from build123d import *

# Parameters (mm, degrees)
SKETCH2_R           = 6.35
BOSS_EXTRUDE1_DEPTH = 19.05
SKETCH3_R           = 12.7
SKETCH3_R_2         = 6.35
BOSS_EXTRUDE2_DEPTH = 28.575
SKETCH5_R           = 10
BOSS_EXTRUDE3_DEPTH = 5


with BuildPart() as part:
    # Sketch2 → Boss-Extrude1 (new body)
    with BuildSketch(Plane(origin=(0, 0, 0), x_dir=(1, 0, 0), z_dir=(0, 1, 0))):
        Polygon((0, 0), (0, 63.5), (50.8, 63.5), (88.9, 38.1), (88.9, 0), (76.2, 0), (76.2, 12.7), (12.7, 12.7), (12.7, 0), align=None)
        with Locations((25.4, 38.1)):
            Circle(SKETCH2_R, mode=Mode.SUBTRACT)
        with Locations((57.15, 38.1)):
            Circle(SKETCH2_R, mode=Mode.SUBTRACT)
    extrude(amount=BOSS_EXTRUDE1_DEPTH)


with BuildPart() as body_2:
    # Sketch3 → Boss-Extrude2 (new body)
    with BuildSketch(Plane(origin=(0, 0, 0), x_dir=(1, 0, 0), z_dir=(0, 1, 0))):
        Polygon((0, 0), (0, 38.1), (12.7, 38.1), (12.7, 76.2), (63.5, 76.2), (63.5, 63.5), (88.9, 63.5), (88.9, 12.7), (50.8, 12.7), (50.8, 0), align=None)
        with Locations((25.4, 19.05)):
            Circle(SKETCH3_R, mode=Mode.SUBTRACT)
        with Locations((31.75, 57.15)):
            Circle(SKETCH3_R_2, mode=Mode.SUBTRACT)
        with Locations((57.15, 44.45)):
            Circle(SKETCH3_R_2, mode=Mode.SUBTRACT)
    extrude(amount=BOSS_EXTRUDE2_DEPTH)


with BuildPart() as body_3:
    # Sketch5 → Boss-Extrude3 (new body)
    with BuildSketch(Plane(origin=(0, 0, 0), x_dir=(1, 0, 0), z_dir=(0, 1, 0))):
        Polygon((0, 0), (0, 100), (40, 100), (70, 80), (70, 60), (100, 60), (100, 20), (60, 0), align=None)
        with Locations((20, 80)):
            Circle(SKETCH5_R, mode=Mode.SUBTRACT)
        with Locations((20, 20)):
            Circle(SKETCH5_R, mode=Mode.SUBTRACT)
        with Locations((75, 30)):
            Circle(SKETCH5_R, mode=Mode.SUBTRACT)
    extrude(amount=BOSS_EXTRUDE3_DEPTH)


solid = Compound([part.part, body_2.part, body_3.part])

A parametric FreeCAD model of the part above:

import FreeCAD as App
import Part
import Sketcher
Q = App.Units.Quantity


def add_polygon(sketch, points):
    """Adds a closed chain of lines whose ends are joined by coincident constraints."""
    first, n = sketch.GeometryCount, len(points)
    for a, b in zip(points, points[1:] + points[:1]):
        sketch.addGeometry(Part.LineSegment(App.Vector(*a, 0), App.Vector(*b, 0)), False)
    for i in range(n):
        sketch.addConstraint(Sketcher.Constraint("Coincident", first + i, 2, first + (i + 1) % n, 1))

doc = App.newDocument("Part")
body = doc.addObject("PartDesign::Body", "Body")

# Sketch on XZ plane
sketch1 = body.newObject("Sketcher::SketchObject", "Sketch")
sketch1.AttachmentSupport = (doc.getObject("XZ_Plane"), [""])
sketch1.MapMode = "FlatFace"
add_polygon(sketch1, [(0, -63.5), (0, 0), (12.7, 0), (12.7, -12.7), (76.2, -12.7), (76.2, 0), (88.9, 0), (88.9, -38.1), (50.8, -63.5)])  # lines 0-8
sketch1.addGeometry(Part.Circle(App.Vector(57.15, -38.1, 0), App.Vector(0, 0, 1), 6.35), False)  # 9
sketch1.addGeometry(Part.Circle(App.Vector(25.4, -38.1, 0), App.Vector(0, 0, 1), 6.35), False)  # 10
sketch1.addConstraint([
    Sketcher.Constraint("Vertical", 0),
    Sketcher.Constraint("Horizontal", 1),
    Sketcher.Constraint("Vertical", 2),
    Sketcher.Constraint("Horizontal", 3),
    Sketcher.Constraint("Vertical", 4),
    Sketcher.Constraint("Horizontal", 5),
    Sketcher.Constraint("Vertical", 6),
    Sketcher.Constraint("Horizontal", 8),
    Sketcher.Constraint("Coincident", 0, 2, -1, 1),
    Sketcher.Constraint("Equal", 9, 10),
    Sketcher.Constraint("PointOnObject", 4, 2, -1),
    Sketcher.Constraint("Horizontal", 9, 3, 10, 3),
    Sketcher.Constraint("Horizontal", 10, 3, 6, 2),
    Sketcher.Constraint("Equal", 1, 5),
    Sketcher.Constraint("Equal", 3, 0),
    Sketcher.Constraint("Equal", 5, 2),
    Sketcher.Constraint("Diameter", 9, Q("0.5 in")),
    Sketcher.Constraint("DistanceX", 8, 2, 8, 1, Q("2 in")),
    Sketcher.Constraint("DistanceX", 1, 1, 1, 2, Q("0.5 in")),
    Sketcher.Constraint("DistanceX", 3, 1, 3, 2, Q("2.5 in")),
    Sketcher.Constraint("DistanceY", 6, 2, 6, 1, Q("1.5 in")),
    Sketcher.Constraint("DistanceX", -1, 1, 10, 3, Q("1 in")),
    Sketcher.Constraint("DistanceX", -1, 1, 9, 3, Q("2.25 in")),
])
pad1 = body.newObject("PartDesign::Pad", "Pad")
pad1.Profile = sketch1
pad1.Length = Q("0.75 in")
pad1.Reversed = True
body2 = doc.addObject("PartDesign::Body", "Body001")

# Sketch on XZ plane
sketch2 = body2.newObject("Sketcher::SketchObject", "Sketch001")
sketch2.AttachmentSupport = (doc.getObject("XZ_Plane001"), [""])
sketch2.MapMode = "FlatFace"
add_polygon(sketch2, [(0, -38.1), (0, 0), (50.8, 0), (50.8, -12.7), (88.9, -12.7), (88.9, -63.5), (63.5, -63.5), (63.5, -76.2), (12.7, -76.2), (12.7, -38.1)])  # lines 0-9
sketch2.addGeometry(Part.Circle(App.Vector(25.4, -19.05, 0), App.Vector(0, 0, 1), 12.7), False)  # 10
sketch2.addGeometry(Part.Circle(App.Vector(57.15, -44.45, 0), App.Vector(0, 0, 1), 6.35), False)  # 11
sketch2.addGeometry(Part.Circle(App.Vector(31.75, -57.15, 0), App.Vector(0, 0, 1), 6.35), False)  # 12
sketch2.addConstraint([
    Sketcher.Constraint("Vertical", 0),
    Sketcher.Constraint("Horizontal", 1),
    Sketcher.Constraint("Vertical", 2),
    Sketcher.Constraint("Horizontal", 3),
    Sketcher.Constraint("Vertical", 4),
    Sketcher.Constraint("Horizontal", 5),
    Sketcher.Constraint("Vertical", 6),
    Sketcher.Constraint("Horizontal", 7),
    Sketcher.Constraint("Vertical", 8),
    Sketcher.Constraint("Horizontal", 9),
    Sketcher.Constraint("Coincident", 0, 2, -1, 1),
    Sketcher.Constraint("Equal", 11, 12),
    Sketcher.Constraint("Equal", 1, 7),
    Sketcher.Constraint("Equal", 3, 0),
    Sketcher.Constraint("Equal", 9, 2),
    Sketcher.Constraint("Equal", 7, 4),
    Sketcher.Constraint("Equal", 2, 6),
    Sketcher.Constraint("Equal", 0, 8),
    Sketcher.Constraint("Diameter", 10, Q("1 in")),
    Sketcher.Constraint("Diameter", 11, Q("0.5 in")),
    Sketcher.Constraint("DistanceX", 1, 1, 1, 2, Q("2 in")),
    Sketcher.Constraint("DistanceX", 3, 1, 3, 2, Q("1.5 in")),
    Sketcher.Constraint("DistanceX", -1, 1, 10, 3, Q("1 in")),
    Sketcher.Constraint("DistanceY", 11, 3, 10, 3, Q("1 in")),
    Sketcher.Constraint("DistanceX", 12, 3, 11, 3, Q("1 in")),
    Sketcher.Constraint("DistanceY", 12, 3, 11, 3, Q("0.5 in")),
    Sketcher.Constraint("DistanceY", 10, 3, -1, 1, Q("0.75 in")),
    Sketcher.Constraint("DistanceX", -1, 1, 11, 3, Q("2.25 in")),
])
pad2 = body2.newObject("PartDesign::Pad", "Pad001")
pad2.Profile = sketch2
pad2.Length = Q("1.125 in")
pad2.Reversed = True
body3 = doc.addObject("PartDesign::Body", "Body002")

# Sketch on XZ plane
sketch3 = body3.newObject("Sketcher::SketchObject", "Sketch002")
sketch3.AttachmentSupport = (doc.getObject("XZ_Plane002"), [""])
sketch3.MapMode = "FlatFace"
add_polygon(sketch3, [(0, -100), (0, 0), (60, 0), (100, -20), (100, -60), (70, -60), (70, -80), (40, -100)])  # lines 0-7
sketch3.addGeometry(Part.Circle(App.Vector(75, -30, 0), App.Vector(0, 0, 1), 10), False)  # 8
sketch3.addGeometry(Part.Circle(App.Vector(20, -20, 0), App.Vector(0, 0, 1), 10), False)  # 9
sketch3.addGeometry(Part.Circle(App.Vector(20, -80, 0), App.Vector(0, 0, 1), 10), False)  # 10
sketch3.addConstraint([
    Sketcher.Constraint("Vertical", 0),
    Sketcher.Constraint("Horizontal", 1),
    Sketcher.Constraint("Vertical", 3),
    Sketcher.Constraint("Horizontal", 4),
    Sketcher.Constraint("Vertical", 5),
    Sketcher.Constraint("Horizontal", 7),
    Sketcher.Constraint("Coincident", 0, 2, -1, 1),
    Sketcher.Constraint("Equal", 8, 9),
    Sketcher.Constraint("Equal", 9, 10),
    Sketcher.Constraint("Horizontal", 9, 3, 2, 2),
    Sketcher.Constraint("Horizontal", 10, 3, 5, 2),
    Sketcher.Constraint("Vertical", 9, 3, 10, 3),
    Sketcher.Constraint("Equal", 7, 3),
    Sketcher.Constraint("Diameter", 8, Q("20 mm")),
    Sketcher.Constraint("DistanceX", 1, 1, 1, 2, Q("60 mm")),
    Sketcher.Constraint("DistanceX", 4, 2, 4, 1, Q("30 mm")),
    Sketcher.Constraint("DistanceX", 7, 2, 7, 1, Q("40 mm")),
    Sketcher.Constraint("DistanceY", 0, 1, 0, 2, Q("100 mm")),
    Sketcher.Constraint("DistanceY", 5, 2, 5, 1, Q("20 mm")),
    Sketcher.Constraint("DistanceX", -1, 1, 8, 3, Q("75 mm")),
    Sketcher.Constraint("DistanceY", 8, 3, -1, 1, Q("30 mm")),
    Sketcher.Constraint("DistanceX", -1, 1, 9, 3, Q("20 mm")),
    Sketcher.Constraint("DistanceY", 9, 3, -1, 1, Q("20 mm")),
    Sketcher.Constraint("DistanceX", -1, 1, 2, 2, Q("100 mm")),
])
pad3 = body3.newObject("PartDesign::Pad", "Pad002")
pad3.Profile = sketch3
pad3.Length = 5
pad3.Reversed = True

doc.recompute()
